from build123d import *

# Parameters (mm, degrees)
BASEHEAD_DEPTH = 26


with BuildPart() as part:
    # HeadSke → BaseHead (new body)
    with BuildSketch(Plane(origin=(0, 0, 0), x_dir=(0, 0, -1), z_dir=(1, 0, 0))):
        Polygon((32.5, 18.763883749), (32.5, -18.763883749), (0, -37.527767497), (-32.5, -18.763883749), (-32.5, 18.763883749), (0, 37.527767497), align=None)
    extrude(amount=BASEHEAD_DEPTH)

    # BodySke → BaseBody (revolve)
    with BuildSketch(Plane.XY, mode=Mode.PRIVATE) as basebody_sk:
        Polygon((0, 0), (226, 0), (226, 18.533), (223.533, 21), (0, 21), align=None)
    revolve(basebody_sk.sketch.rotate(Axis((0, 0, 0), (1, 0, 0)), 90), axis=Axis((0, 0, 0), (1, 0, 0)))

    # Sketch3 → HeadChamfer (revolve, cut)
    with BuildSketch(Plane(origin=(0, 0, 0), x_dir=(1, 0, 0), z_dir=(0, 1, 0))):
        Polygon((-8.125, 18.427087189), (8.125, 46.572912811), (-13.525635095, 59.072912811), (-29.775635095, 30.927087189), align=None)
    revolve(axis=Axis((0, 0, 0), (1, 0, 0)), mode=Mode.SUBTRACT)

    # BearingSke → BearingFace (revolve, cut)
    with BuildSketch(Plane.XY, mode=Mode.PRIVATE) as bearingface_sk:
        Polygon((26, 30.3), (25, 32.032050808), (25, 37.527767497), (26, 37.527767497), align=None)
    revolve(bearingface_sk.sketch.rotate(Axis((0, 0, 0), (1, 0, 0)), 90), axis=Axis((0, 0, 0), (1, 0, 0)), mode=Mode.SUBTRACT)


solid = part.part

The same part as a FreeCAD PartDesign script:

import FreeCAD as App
import Part
import Sketcher

V = App.Vector
Q = App.Units.Quantity


def add_polygon(sketch, points):
    """Adds a closed chain of lines whose ends are joined by coincident constraints."""
    first, n = sketch.GeometryCount, len(points)
    for a, b in zip(points, points[1:] + points[:1]):
        sketch.addGeometry(Part.LineSegment(App.Vector(*a, 0), App.Vector(*b, 0)), False)
    for i in range(n):
        sketch.addConstraint(Sketcher.Constraint("Coincident", first + i, 2, first + (i + 1) % n, 1))

doc = App.newDocument("Part")
body = doc.addObject("PartDesign::Body", "Body")

sketch1 = body.newObject("Sketcher::SketchObject", "Sketch")
sketch1.AttachmentSupport = (doc.getObject("YZ_Plane"), [""])
sketch1.MapMode = "FlatFace"
add_polygon(sketch1, [(-19, -32), (19, -32), (38, 0), (19, 32), (-19, 32), (-38, 0)])
sketch1.addConstraint([
    Sketcher.Constraint("Horizontal", 0),
    Sketcher.Constraint("Horizontal", 3),
    Sketcher.Constraint("Symmetric", 0, 2, 3, 2, -1, 1),
    Sketcher.Constraint("Symmetric", 1, 2, 4, 2, -1, 1),
    Sketcher.Constraint("PointOnObject", 1, 2, -1),
    Sketcher.Constraint("Parallel", 2, 5),
    Sketcher.Constraint("Vertical", 0, 2, 2, 2),
    Sketcher.Constraint("Angle", 1, Q("60 deg")),
    Sketcher.Constraint("DistanceY", 0, 2, 2, 2, Q("65 mm")),
    Sketcher.Constraint("DistanceX", 0, 1, 0, 2, Q("37.527767 mm")),
])
pad1 = body.newObject("PartDesign::Pad", "Pad")
pad1.Profile = sketch1
pad1.Length = 26

sketch2 = body.newObject("Sketcher::SketchObject", "Sketch001")
sketch2.AttachmentSupport = (doc.getObject("XY_Plane"), [""])
sketch2.MapMode = "FlatFace"
add_polygon(sketch2, [(0, 0), (226, 0), (226, 18.5), (223.5, 21), (0, 21)])
sketch2.addConstraint([
    Sketcher.Constraint("Horizontal", 0),
    Sketcher.Constraint("Vertical", 1),
    Sketcher.Constraint("Horizontal", 3),
    Sketcher.Constraint("Vertical", 4),
    Sketcher.Constraint("Coincident", 4, 2, -1, 1),
    Sketcher.Constraint("DistanceX", 0, 1, 0, 2, Q("226 mm")),
    Sketcher.Constraint("DistanceY", 4, 2, 4, 1, Q("21 mm")),
    Sketcher.Constraint("Angle", 2, Q("135 deg")),
    Sketcher.Constraint("DistanceX", 3, 2, 3, 1, Q("223.533 mm")),
])
revolution = body.newObject("PartDesign::Revolution", "Revolution")
revolution.Profile = sketch2
revolution.ReferenceAxis = (sketch2, ["H_Axis"])
revolution.Angle = 360

sketch3 = body.newObject("Sketcher::SketchObject", "Sketch002")
sketch3.AttachmentSupport = (doc.getObject("XZ_Plane"), [""])
sketch3.MapMode = "FlatFace"
add_polygon(sketch3, [(-8, -18), (8, -47), (-14, -59), (-30, -31)])
sketch3.addConstraint([
    Sketcher.Constraint("Perpendicular", 0, 1),
    Sketcher.Constraint("Perpendicular", 1, 2),
    Sketcher.Constraint("Perpendicular", 2, 3),
    Sketcher.Constraint("Angle", 0, Q("-60 deg")),
    Sketcher.Constraint("Distance", 1, Q("25 mm")),
    Sketcher.Constraint("Distance", 0, Q("32.5 mm")),
    Sketcher.Constraint("DistanceX", -1, 1, 0, 2, Q("8.125 mm")),
    Sketcher.Constraint("DistanceY", 0, 2, -1, 1, Q("46.572913 mm")),
])
groove = body.newObject("PartDesign::Groove", "Groove")
groove.Profile = sketch3
groove.ReferenceAxis = (sketch3, ["H_Axis"])
groove.Angle = 360

sketch4 = body.newObject("Sketcher::SketchObject", "Sketch003")
sketch4.AttachmentSupport = (doc.getObject("XY_Plane"), [""])
sketch4.MapMode = "FlatFace"
add_polygon(sketch4, [(25, 32), (26, 30.3), (26, 37.5), (25, 37.5)])
sketch4.addConstraint([
    Sketcher.Constraint("Vertical", 1),
    Sketcher.Constraint("Horizontal", 2),
    Sketcher.Constraint("Vertical", 3),
    Sketcher.Constraint("DistanceX", 2, 2, 2, 1, Q("1 mm")),
    Sketcher.Constraint("Angle", 0, Q("-60 deg")),
    Sketcher.Constraint("DistanceX", -1, 1, 0, 2, Q("26 mm")),
    Sketcher.Constraint("DistanceY", -1, 1, 0, 2, Q("30.3 mm")),
    Sketcher.Constraint("DistanceY", 1, 1, 1, 2, Q("7.227767 mm")),
])
groove2 = body.newObject("PartDesign::Groove", "Groove001")
groove2.Profile = sketch4
groove2.ReferenceAxis = (sketch4, ["H_Axis"])
groove2.Angle = 360

doc.recompute()
